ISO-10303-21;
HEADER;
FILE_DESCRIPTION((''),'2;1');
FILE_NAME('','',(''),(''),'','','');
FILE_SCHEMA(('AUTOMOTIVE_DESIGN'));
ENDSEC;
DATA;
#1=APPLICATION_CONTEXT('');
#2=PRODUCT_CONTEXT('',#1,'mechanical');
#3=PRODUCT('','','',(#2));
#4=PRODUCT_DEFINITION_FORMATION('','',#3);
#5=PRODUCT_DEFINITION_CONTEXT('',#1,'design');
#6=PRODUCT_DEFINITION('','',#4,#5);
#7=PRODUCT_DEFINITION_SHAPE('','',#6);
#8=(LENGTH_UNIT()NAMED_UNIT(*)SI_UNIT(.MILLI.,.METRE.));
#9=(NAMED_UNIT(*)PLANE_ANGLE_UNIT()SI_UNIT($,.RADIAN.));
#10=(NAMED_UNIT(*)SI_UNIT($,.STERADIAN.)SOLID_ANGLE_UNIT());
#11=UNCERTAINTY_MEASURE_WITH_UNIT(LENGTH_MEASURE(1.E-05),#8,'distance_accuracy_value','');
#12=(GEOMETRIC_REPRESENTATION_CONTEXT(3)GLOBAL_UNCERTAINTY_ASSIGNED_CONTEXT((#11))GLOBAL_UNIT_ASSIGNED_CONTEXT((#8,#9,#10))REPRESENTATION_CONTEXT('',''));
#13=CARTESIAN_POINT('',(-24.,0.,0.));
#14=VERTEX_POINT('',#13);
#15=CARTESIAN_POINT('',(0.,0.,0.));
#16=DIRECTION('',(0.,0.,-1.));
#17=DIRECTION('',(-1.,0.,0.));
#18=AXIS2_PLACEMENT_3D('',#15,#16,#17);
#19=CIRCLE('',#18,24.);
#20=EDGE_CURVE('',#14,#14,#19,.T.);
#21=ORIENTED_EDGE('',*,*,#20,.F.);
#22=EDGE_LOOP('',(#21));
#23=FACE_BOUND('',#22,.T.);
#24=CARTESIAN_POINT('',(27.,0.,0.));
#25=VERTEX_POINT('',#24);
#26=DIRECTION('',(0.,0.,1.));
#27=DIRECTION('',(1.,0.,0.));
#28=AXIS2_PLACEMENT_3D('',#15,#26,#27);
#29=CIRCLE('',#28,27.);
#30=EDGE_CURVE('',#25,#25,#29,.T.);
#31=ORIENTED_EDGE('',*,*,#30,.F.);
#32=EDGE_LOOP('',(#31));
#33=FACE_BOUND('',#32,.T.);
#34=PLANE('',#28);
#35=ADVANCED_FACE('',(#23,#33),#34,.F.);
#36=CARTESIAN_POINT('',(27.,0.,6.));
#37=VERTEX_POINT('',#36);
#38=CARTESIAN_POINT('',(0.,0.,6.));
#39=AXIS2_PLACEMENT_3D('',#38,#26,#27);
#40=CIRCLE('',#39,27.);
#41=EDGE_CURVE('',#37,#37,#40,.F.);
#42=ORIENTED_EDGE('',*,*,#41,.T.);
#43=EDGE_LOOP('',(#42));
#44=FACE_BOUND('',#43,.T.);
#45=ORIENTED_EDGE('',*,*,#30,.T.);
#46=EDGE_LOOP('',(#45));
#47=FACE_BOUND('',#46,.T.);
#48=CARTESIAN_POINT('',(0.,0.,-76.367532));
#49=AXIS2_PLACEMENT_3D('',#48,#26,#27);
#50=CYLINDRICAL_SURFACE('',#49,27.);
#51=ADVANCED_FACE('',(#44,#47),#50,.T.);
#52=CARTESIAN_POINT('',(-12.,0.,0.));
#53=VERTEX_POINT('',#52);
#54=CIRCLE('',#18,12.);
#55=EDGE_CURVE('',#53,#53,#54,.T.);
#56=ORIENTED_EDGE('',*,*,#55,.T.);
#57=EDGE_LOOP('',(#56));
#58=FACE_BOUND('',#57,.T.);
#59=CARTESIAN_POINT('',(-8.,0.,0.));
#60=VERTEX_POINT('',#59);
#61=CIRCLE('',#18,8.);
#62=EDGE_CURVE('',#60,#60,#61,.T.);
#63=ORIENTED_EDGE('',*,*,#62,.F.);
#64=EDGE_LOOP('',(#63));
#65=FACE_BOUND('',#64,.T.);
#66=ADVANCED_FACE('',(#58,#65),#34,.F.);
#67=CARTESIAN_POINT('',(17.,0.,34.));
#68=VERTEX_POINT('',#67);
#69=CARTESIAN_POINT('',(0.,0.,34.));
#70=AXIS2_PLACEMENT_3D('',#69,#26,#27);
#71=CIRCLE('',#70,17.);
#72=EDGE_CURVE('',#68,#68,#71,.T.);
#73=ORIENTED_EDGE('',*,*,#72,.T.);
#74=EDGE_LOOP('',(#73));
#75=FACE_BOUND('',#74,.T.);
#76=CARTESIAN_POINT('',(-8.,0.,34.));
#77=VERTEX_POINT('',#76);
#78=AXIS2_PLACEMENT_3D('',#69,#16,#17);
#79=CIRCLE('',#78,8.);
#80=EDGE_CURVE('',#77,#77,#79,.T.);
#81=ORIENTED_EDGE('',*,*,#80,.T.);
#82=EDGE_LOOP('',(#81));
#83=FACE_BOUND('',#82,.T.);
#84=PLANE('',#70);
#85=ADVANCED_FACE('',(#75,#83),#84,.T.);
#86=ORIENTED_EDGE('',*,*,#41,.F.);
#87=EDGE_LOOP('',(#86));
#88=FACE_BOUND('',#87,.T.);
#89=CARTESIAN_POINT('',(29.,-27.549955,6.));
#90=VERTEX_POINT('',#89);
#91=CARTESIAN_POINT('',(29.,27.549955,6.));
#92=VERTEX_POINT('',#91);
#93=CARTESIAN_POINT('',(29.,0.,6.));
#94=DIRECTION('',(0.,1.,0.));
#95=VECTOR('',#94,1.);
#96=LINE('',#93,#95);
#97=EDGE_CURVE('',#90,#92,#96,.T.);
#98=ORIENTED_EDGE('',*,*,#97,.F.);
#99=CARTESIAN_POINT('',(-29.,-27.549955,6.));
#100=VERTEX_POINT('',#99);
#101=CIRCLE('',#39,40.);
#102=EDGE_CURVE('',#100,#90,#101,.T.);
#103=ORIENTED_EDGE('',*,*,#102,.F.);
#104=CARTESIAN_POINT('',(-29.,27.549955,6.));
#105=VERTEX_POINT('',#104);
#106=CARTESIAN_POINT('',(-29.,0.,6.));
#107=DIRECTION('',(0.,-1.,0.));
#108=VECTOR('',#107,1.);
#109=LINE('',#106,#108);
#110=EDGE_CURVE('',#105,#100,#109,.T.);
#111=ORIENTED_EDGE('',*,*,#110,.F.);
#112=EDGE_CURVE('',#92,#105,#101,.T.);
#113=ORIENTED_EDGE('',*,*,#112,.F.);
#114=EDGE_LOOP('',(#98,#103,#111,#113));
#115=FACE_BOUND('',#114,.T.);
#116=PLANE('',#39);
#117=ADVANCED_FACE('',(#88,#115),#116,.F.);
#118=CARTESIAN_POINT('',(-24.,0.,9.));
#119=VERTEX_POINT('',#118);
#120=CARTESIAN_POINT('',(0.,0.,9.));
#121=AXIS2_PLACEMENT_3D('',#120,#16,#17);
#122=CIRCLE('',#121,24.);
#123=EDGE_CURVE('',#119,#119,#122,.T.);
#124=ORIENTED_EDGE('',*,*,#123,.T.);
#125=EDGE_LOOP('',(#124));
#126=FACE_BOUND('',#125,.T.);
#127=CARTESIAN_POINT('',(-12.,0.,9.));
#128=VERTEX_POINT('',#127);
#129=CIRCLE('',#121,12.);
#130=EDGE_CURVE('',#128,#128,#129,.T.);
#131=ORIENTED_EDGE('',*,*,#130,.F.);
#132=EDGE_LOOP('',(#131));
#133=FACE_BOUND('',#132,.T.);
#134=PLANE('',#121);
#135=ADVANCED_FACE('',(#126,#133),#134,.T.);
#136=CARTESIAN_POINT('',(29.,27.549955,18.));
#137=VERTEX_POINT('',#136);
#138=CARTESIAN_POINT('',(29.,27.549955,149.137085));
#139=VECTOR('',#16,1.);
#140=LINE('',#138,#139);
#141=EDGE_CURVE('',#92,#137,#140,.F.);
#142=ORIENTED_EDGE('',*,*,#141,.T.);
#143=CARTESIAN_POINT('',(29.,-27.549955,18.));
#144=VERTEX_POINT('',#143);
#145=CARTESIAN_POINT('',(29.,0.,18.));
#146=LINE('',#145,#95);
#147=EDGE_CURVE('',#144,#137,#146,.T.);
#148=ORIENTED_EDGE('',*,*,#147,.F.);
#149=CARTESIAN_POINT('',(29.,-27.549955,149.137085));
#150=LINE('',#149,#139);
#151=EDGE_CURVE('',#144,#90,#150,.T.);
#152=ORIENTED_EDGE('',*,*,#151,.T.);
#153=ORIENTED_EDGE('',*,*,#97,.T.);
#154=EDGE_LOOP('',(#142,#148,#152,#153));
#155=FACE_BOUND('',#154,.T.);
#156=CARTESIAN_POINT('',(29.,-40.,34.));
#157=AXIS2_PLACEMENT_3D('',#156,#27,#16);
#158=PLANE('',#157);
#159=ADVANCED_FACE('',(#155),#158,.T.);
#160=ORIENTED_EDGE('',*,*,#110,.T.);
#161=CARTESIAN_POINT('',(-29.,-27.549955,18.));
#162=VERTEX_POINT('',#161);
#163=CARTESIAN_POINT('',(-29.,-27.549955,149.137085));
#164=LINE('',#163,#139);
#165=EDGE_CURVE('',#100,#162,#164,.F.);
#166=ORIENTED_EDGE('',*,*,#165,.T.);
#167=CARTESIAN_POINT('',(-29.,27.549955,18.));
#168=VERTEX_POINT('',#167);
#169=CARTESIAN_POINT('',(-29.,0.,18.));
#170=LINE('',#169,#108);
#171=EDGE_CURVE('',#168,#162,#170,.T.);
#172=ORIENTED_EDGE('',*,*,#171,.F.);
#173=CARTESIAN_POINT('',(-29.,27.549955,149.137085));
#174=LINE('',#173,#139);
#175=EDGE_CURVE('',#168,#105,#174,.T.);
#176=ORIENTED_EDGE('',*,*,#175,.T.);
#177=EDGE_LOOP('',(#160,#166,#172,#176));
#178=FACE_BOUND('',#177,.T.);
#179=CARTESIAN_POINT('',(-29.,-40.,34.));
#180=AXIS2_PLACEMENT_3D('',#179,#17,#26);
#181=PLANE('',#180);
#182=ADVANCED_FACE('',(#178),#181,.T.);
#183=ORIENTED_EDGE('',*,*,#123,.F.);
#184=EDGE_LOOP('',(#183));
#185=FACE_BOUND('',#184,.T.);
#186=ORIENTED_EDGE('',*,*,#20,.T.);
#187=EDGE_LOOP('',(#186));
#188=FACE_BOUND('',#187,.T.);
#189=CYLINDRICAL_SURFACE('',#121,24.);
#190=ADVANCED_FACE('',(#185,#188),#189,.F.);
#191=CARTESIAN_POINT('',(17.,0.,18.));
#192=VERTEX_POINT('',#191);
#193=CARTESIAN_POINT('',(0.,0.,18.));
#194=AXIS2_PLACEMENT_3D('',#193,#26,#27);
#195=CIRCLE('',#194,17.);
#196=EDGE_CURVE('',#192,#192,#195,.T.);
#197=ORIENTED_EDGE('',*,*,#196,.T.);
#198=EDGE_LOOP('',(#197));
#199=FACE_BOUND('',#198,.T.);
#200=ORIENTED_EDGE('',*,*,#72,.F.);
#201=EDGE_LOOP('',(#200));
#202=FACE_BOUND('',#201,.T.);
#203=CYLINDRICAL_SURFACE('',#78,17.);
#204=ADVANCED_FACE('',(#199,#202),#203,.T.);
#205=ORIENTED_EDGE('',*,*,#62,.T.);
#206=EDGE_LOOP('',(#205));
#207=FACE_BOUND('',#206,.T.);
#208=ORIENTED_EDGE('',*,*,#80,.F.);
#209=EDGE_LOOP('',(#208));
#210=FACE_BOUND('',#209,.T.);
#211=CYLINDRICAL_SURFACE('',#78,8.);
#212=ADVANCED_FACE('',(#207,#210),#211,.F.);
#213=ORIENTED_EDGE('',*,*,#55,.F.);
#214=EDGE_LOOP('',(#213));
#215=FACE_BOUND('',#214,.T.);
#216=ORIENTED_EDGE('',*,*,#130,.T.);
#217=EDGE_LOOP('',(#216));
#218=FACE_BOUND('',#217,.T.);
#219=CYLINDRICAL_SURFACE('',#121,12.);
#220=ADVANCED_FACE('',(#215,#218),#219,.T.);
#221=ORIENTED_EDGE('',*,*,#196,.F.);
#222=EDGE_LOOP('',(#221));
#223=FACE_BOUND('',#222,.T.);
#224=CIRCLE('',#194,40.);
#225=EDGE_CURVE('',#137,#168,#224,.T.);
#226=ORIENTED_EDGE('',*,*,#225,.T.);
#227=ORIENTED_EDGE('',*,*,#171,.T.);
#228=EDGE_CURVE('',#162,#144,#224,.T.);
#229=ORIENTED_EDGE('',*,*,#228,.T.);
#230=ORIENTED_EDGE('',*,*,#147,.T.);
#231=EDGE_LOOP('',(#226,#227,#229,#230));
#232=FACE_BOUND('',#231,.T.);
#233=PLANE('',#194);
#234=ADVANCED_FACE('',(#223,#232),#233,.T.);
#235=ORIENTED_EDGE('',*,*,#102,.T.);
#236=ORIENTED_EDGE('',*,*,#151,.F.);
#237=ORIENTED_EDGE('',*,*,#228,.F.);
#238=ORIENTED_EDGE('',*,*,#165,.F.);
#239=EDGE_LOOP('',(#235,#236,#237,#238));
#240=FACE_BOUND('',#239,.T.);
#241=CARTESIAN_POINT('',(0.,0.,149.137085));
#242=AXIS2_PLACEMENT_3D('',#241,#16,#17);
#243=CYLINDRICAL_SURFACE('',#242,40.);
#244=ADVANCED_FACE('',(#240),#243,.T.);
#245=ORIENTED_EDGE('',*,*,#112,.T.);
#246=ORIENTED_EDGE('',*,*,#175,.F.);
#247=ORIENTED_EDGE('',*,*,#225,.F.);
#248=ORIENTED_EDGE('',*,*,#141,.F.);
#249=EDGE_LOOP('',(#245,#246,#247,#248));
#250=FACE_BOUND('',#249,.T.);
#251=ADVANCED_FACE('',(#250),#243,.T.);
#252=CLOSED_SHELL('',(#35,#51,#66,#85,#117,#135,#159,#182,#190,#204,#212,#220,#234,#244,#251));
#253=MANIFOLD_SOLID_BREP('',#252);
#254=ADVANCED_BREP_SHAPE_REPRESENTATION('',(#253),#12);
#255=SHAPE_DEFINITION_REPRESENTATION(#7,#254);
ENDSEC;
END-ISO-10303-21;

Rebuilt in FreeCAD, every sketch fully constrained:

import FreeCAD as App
import Part
import Sketcher

V = App.Vector

doc = App.newDocument("Part")
body = doc.addObject("PartDesign::Body", "Body")

# Sketch on XY plane
sketch1 = body.newObject("Sketcher::SketchObject", "Sketch")
sketch1.AttachmentSupport = (doc.getObject("XY_Plane"), [""])
sketch1.MapMode = "FlatFace"
sketch1.addGeometry(Part.Circle(V(0, 0, 0), V(0, 0, 1), 17), False)
sketch1.addConstraint([
    Sketcher.Constraint("Coincident", 0, 3, -1, 1),
    Sketcher.Constraint("Diameter", 0, 34.0),
])
pad1 = body.newObject("PartDesign::Pad", "Pad")
pad1.Profile = sketch1
pad1.Length = 34

# Sketch on XY plane
sketch2 = body.newObject("Sketcher::SketchObject", "Sketch001")
sketch2.AttachmentSupport = (doc.getObject("XY_Plane"), [""])
sketch2.MapMode = "FlatFace"
sketch2.AttachmentOffset = App.Placement(V(0, 0, 6), App.Rotation())
sketch2.addGeometry(Part.Circle(V(0, 0, 0), V(0, 0, 1), 40), False)
sketch2.addConstraint([
    Sketcher.Constraint("Coincident", 0, 3, -1, 1),
    Sketcher.Constraint("Diameter", 0, 80.0),
])
pad2 = body.newObject("PartDesign::Pad", "Pad001")
pad2.Profile = sketch2
pad2.Length = 12

# Sketch on XY plane
sketch3 = body.newObject("Sketcher::SketchObject", "Sketch002")
sketch3.AttachmentSupport = (doc.getObject("XY_Plane"), [""])
sketch3.MapMode = "FlatFace"
sketch3.AttachmentOffset = App.Placement(V(0, 0, 6), App.Rotation())
sketch3.addGeometry(Part.Circle(V(0, 0, 0), V(0, 0, 1), 27), False)
sketch3.addConstraint([
    Sketcher.Constraint("Coincident", 0, 3, -1, 1),
    Sketcher.Constraint("Diameter", 0, 54.0),
])
pad3 = body.newObject("PartDesign::Pad", "Pad002")
pad3.Profile = sketch3
pad3.Length = 6
pad3.Reversed = True

# Sketch on XY plane
sketch4 = body.newObject("Sketcher::SketchObject", "Sketch003")
sketch4.AttachmentSupport = (doc.getObject("XY_Plane"), [""])
sketch4.MapMode = "FlatFace"
sketch4.addGeometry([
    Part.Circle(V(0, 0, 0), V(0, 0, 1), 24),
    Part.Circle(V(0, 0, 0), V(0, 0, 1), 12),
], False)
sketch4.addConstraint([
    Sketcher.Constraint("Coincident", 0, 3, -1, 1),
    Sketcher.Constraint("Coincident", 1, 3, -1, 1),
    Sketcher.Constraint("Diameter", 0, 48.0),
    Sketcher.Constraint("Diameter", 1, 24.0),
])
pocket1 = body.newObject("PartDesign::Pocket", "Pocket")
pocket1.Profile = sketch4
pocket1.Length = 9
pocket1.Reversed = True

# Sketch on XY plane
sketch5 = body.newObject("Sketcher::SketchObject", "Sketch004")
sketch5.AttachmentSupport = (doc.getObject("XY_Plane"), [""])
sketch5.MapMode = "FlatFace"
sketch5.addGeometry([
    Part.LineSegment(V(53, 53, 0), V(53, -53, 0)),  # 0
    Part.LineSegment(V(53, -53, 0), V(-53, -53, 0)),  # 1
    Part.LineSegment(V(-53, -53, 0), V(-53, 53, 0)),  # 2
    Part.LineSegment(V(-53, 53, 0), V(53, 53, 0)),  # 3
    Part.LineSegment(V(-29, -40, 0), V(29, -40, 0)),  # 4
    Part.LineSegment(V(29, -40, 0), V(29, 40, 0)),  # 5
    Part.LineSegment(V(29, 40, 0), V(-29, 40, 0)),  # 6
    Part.LineSegment(V(-29, 40, 0), V(-29, -40, 0)),  # 7
    Part.Circle(V(0, 0, 0), V(0, 0, 1), 8),  # 8
], False)
sketch5.addConstraint([
    Sketcher.Constraint("Coincident", 0, 2, 1, 1),
    Sketcher.Constraint("Coincident", 1, 2, 2, 1),
    Sketcher.Constraint("Coincident", 2, 2, 3, 1),
    Sketcher.Constraint("Coincident", 3, 2, 0, 1),
    Sketcher.Constraint("Coincident", 4, 2, 5, 1),
    Sketcher.Constraint("Coincident", 5, 2, 6, 1),
    Sketcher.Constraint("Coincident", 6, 2, 7, 1),
    Sketcher.Constraint("Coincident", 7, 2, 4, 1),
    Sketcher.Constraint("Vertical", 0),
    Sketcher.Constraint("Horizontal", 1),
    Sketcher.Constraint("Vertical", 2),
    Sketcher.Constraint("Horizontal", 3),
    Sketcher.Constraint("Horizontal", 4),
    Sketcher.Constraint("Vertical", 5),
    Sketcher.Constraint("Horizontal", 6),
    Sketcher.Constraint("Vertical", 7),
    Sketcher.Constraint("Coincident", 8, 3, -1, 1),
    Sketcher.Constraint("Symmetric", 0, 2, 2, 2, -1, 1),
    Sketcher.Constraint("Symmetric", 4, 2, 6, 2, -1, 1),
    Sketcher.Constraint("Equal", 3, 0),
    Sketcher.Constraint("Diameter", 8, 16.0),
    Sketcher.Constraint("DistanceX", 4, 1, 4, 2, 58.0),
    Sketcher.Constraint("DistanceY", 5, 1, 5, 2, 80.0),
    Sketcher.Constraint("DistanceX", 1, 2, 1, 1, 105.628),
])
pocket2 = body.newObject("PartDesign::Pocket", "Pocket001")
pocket2.Profile = sketch5
pocket2.Type = "ThroughAll"
pocket2.Reversed = True

doc.recompute()
